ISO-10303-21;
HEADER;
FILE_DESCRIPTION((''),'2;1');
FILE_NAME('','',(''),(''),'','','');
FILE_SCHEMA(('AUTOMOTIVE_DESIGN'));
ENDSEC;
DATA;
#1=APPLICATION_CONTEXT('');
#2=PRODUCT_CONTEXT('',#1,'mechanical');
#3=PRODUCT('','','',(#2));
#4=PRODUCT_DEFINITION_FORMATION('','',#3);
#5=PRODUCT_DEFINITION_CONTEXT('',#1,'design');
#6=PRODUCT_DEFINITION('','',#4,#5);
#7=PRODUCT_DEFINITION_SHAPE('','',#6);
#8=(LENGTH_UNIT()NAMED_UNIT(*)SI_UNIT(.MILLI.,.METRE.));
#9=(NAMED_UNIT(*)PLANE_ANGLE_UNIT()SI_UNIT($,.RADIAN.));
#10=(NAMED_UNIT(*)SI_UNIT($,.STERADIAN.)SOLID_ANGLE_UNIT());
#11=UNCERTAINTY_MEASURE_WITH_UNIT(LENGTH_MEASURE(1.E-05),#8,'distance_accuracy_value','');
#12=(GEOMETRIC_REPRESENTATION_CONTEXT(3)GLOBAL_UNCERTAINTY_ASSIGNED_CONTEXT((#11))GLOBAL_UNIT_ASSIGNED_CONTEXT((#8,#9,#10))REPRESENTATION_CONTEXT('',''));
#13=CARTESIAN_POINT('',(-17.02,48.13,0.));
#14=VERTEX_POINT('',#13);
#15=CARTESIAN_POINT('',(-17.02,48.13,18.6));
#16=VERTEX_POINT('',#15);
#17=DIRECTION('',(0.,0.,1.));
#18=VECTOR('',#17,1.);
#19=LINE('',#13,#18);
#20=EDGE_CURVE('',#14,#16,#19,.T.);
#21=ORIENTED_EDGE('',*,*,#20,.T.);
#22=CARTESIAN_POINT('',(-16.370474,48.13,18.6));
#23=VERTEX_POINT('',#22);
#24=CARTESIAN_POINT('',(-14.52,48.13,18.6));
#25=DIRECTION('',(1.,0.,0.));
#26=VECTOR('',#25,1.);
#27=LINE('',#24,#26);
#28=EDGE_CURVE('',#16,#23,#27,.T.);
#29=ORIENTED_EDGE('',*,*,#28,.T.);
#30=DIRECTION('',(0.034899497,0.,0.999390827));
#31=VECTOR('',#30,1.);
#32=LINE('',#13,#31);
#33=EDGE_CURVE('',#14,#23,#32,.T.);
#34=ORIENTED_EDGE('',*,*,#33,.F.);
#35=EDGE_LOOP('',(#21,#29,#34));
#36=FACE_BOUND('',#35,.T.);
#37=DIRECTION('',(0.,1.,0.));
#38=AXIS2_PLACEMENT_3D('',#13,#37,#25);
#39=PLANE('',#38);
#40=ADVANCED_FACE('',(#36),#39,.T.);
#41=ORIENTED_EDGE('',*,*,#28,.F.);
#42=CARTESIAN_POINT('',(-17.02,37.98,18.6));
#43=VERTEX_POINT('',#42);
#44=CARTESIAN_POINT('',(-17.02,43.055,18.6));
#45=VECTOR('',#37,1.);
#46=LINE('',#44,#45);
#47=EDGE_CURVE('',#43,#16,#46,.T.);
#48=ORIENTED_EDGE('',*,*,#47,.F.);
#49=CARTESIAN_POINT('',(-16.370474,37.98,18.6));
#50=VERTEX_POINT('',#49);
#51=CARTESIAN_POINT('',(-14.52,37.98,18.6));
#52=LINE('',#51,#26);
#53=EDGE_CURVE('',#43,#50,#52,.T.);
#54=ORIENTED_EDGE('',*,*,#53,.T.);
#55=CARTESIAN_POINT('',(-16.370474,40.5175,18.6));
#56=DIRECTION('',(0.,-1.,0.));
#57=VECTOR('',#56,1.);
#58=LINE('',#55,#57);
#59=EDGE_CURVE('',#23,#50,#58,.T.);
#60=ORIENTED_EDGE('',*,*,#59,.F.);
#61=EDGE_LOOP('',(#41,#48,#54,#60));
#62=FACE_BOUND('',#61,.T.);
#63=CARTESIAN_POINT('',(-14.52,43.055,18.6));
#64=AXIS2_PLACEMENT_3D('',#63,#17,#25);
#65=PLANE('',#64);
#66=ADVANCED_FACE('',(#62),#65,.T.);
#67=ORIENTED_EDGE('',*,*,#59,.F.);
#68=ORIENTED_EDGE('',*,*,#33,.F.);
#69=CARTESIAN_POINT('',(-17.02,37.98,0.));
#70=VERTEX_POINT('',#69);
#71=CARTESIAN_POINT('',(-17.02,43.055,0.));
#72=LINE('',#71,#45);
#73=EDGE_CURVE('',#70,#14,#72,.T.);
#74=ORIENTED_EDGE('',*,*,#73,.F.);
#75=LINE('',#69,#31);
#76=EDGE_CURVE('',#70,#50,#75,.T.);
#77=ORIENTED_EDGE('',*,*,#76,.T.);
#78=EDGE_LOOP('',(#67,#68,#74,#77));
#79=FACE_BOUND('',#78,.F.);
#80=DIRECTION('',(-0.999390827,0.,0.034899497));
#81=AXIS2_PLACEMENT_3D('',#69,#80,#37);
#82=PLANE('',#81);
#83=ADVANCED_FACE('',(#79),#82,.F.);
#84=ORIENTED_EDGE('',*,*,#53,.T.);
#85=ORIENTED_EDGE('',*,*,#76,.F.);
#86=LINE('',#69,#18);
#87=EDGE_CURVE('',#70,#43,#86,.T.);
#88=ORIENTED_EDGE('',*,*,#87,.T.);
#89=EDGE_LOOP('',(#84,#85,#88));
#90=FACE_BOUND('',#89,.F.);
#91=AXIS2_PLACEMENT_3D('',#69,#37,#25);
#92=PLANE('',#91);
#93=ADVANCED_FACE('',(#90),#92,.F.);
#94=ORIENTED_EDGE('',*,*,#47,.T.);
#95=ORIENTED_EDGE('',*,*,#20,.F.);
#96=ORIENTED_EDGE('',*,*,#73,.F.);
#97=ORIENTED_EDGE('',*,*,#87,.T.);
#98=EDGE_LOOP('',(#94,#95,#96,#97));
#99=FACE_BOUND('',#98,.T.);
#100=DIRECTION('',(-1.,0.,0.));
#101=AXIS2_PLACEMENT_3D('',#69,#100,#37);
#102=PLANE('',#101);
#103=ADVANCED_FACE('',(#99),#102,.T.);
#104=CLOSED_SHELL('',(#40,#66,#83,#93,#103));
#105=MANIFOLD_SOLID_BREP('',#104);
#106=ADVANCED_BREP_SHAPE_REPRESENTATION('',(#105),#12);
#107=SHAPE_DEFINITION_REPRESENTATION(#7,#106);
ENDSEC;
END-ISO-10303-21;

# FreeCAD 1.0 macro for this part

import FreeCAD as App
import Part
import Sketcher

V = App.Vector
Q = App.Units.Quantity


def add_polygon(sketch, points):
    """Adds a closed chain of lines whose ends are joined by coincident constraints."""
    first, n = sketch.GeometryCount, len(points)
    for a, b in zip(points, points[1:] + points[:1]):
        sketch.addGeometry(Part.LineSegment(App.Vector(*a, 0), App.Vector(*b, 0)), False)
    for i in range(n):
        sketch.addConstraint(Sketcher.Constraint("Coincident", first + i, 2, first + (i + 1) % n, 1))

doc = App.newDocument("Part")
body = doc.addObject("PartDesign::Body", "Body")

sketch1 = body.newObject("Sketcher::SketchObject", "Sketch")
sketch1.AttachmentSupport = (doc.getObject("XY_Plane"), [""])
sketch1.MapMode = "FlatFace"
add_polygon(sketch1, [(0, 10), (0, 0), (5, 0), (5, 10)])
sketch1.addConstraint([
    Sketcher.Constraint("Vertical", 0),
    Sketcher.Constraint("Horizontal", 1),
    Sketcher.Constraint("Vertical", 2),
    Sketcher.Constraint("Horizontal", 3),
    Sketcher.Constraint("Coincident", 0, 2, -1, 1),
    Sketcher.Constraint("DistanceX", 1, 1, 1, 2, Q("5 mm")),
    Sketcher.Constraint("DistanceY", 0, 2, 0, 1, Q("10.15 mm")),
])
pad1 = body.newObject("PartDesign::Pad", "Pad")
pad1.Profile = sketch1
pad1.Length = 21.6
body2 = doc.addObject("PartDesign::Body", "Body001")
doc.recompute()

body.Placement = App.Placement(V(-17.02, 46.38, 0), App.Rotation(V(0, 1, 0), 2))
boolean = body2.newObject("PartDesign::Boolean", "Boolean")
boolean.Type = "Fuse"
boolean.addObjects([body])
body3 = doc.addObject("PartDesign::Body", "Body002")

sketch2 = body3.newObject("Sketcher::SketchObject", "Sketch001")
sketch2.AttachmentSupport = (doc.getObject("XY_Plane002"), [""])
sketch2.MapMode = "FlatFace"
add_polygon(sketch2, [(-17, 57), (-17, 46), (-12, 46), (-12, 57)])
sketch2.addConstraint([
    Sketcher.Constraint("Vertical", 0),
    Sketcher.Constraint("Horizontal", 1),
    Sketcher.Constraint("Vertical", 2),
    Sketcher.Constraint("Horizontal", 3),
    Sketcher.Constraint("DistanceX", 1, 1, 1, 2, Q("5 mm")),
    Sketcher.Constraint("DistanceY", 0, 2, 0, 1, Q("10.15 mm")),
    Sketcher.Constraint("DistanceX", 0, 2, -1, 1, Q("17.02 mm")),
    Sketcher.Constraint("DistanceY", -1, 1, 0, 2, Q("46.38 mm")),
])
pad2 = body3.newObject("PartDesign::Pad", "Pad001")
pad2.Profile = sketch2
pad2.Length = 18.6
doc.recompute()

boolean2 = body3.newObject("PartDesign::Boolean", "Boolean001")
boolean2.Type = "Cut"
boolean2.addObjects([body2])
body4 = doc.addObject("PartDesign::Body", "Body003")
doc.recompute()

body3.Placement = App.Placement(V(0, -8.4, 0), App.Rotation(V(0, 0, 1), 0))
boolean3 = body4.newObject("PartDesign::Boolean", "Boolean002")
boolean3.Type = "Fuse"
boolean3.addObjects([body3])

doc.recompute()
